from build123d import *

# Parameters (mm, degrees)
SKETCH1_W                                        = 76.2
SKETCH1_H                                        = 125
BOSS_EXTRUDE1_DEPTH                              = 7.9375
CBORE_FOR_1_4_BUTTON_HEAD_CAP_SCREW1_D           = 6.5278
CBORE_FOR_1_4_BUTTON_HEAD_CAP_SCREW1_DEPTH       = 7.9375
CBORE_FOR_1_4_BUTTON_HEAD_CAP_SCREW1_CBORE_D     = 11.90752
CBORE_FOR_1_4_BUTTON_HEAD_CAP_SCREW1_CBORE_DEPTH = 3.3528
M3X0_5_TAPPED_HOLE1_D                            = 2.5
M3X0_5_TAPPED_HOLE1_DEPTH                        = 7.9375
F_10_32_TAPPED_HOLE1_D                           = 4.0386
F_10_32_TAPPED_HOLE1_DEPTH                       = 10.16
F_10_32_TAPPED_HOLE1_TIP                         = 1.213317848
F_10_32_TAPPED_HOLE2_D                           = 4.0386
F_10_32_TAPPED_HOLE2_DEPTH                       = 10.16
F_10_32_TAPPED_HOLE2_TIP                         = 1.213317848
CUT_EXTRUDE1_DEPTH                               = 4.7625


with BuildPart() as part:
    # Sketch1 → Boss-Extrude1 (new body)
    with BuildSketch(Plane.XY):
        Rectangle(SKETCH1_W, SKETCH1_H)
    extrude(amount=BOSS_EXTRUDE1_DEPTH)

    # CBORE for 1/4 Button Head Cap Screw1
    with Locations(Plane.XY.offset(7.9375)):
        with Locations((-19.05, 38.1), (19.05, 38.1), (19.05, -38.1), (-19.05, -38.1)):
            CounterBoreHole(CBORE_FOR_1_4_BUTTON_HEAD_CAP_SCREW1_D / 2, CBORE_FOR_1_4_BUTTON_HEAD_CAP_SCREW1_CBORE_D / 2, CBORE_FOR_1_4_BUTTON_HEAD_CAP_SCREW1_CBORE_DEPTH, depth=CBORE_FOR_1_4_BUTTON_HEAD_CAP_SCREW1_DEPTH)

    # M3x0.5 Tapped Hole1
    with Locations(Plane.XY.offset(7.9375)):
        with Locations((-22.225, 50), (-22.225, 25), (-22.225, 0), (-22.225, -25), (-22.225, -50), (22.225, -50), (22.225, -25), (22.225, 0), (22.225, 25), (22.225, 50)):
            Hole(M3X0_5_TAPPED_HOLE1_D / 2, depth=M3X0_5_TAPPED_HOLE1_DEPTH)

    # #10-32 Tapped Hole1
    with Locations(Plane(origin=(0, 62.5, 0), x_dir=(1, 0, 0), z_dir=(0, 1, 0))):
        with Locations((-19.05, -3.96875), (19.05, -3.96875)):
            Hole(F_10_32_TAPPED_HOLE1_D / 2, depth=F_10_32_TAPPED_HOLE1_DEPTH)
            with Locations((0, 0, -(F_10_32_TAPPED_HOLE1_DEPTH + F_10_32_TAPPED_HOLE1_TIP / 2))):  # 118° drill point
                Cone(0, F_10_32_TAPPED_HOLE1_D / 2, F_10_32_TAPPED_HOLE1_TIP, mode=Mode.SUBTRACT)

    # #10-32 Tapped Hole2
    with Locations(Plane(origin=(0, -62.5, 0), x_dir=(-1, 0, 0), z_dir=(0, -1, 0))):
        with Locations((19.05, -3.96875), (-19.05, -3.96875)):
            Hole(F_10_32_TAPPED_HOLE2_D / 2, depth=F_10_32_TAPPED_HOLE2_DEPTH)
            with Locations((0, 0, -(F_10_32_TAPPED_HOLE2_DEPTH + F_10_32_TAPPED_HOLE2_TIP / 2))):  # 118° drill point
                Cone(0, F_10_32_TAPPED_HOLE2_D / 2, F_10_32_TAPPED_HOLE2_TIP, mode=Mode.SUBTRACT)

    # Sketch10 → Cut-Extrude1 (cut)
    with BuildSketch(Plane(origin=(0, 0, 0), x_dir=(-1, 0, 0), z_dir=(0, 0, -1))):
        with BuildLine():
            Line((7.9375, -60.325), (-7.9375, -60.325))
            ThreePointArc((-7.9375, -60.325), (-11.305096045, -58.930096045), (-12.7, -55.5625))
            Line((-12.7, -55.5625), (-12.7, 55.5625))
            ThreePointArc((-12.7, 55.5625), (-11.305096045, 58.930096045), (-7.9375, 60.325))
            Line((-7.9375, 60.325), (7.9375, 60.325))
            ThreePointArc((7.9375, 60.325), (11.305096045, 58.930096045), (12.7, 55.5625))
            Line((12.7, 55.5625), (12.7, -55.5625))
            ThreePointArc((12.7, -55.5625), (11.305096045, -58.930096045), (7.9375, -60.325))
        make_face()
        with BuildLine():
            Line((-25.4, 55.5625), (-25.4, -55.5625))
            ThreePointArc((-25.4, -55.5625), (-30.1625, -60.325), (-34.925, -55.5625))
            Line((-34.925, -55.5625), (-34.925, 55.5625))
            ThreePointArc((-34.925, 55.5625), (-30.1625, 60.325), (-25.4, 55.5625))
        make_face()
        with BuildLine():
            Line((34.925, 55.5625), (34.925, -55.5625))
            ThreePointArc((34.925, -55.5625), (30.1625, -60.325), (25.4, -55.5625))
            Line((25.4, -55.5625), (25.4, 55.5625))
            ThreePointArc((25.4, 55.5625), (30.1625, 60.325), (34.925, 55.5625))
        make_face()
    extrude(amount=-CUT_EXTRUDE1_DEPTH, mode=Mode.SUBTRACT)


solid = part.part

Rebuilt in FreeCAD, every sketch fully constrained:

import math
import FreeCAD as App
import Part
import Sketcher
Q = App.Units.Quantity

doc = App.newDocument("Part")
params = doc.addObject("Spreadsheet::Sheet", "Params")
for row, (alias, value) in enumerate([
    ("sketch1_width", "3 in"),
    ("pad1_length", "0.3125 in"),
    ("sketch2_diameter", "0.257 in"),
    ("hole_diameter", "0.257 in"),
    ("hole_depth", "0.3125 in"),
    ("hole_cbore_diameter", "0.4688 in"),
    ("hole_cbore_depth", "0.132 in"),
    ("hole2_diameter", "2.5 mm"),
    ("hole2_depth", "0.3125 in"),
    ("sketch4_diameter", "0.159 in"),
    ("hole3_diameter", "0.159 in"),
    ("hole3_depth", "0.4 in"),
    ("sketch5_diameter", "0.159 in"),
    ("hole4_diameter", "0.159 in"),
    ("hole4_depth", "0.4 in"),
    ("sketch6_radius", "0.1875 in"),
    ("sketch6_height", "4.375 in"),
    ("pocket1_length", "0.1875 in"),
], start=1):
    params.set(f"A{row}", alias)
    params.set(f"B{row}", "=" + value)
    params.setAlias(f"B{row}", alias)

body = doc.addObject("PartDesign::Body", "Body")

sketch1 = body.newObject("Sketcher::SketchObject", "Sketch")
sketch1.AttachmentSupport = (doc.getObject("XY_Plane"), [""])
sketch1.MapMode = "FlatFace"
sketch1.addGeometry([
    Part.LineSegment(App.Vector(-38.1, 62.5, 0), App.Vector(-38.1, -62.5, 0)),
    Part.LineSegment(App.Vector(-38.1, -62.5, 0), App.Vector(38.1, -62.5, 0)),
    Part.LineSegment(App.Vector(38.1, -62.5, 0), App.Vector(38.1, 62.5, 0)),
    Part.LineSegment(App.Vector(38.1, 62.5, 0), App.Vector(-38.1, 62.5, 0)),
], False)
sketch1.addConstraint([
    Sketcher.Constraint("Coincident", 0, 2, 1, 1),
    Sketcher.Constraint("Coincident", 1, 2, 2, 1),
    Sketcher.Constraint("Coincident", 2, 2, 3, 1),
    Sketcher.Constraint("Coincident", 3, 2, 0, 1),
    Sketcher.Constraint("Vertical", 0),
    Sketcher.Constraint("Horizontal", 1),
    Sketcher.Constraint("Vertical", 2),
    Sketcher.Constraint("Horizontal", 3),
    Sketcher.Constraint("Symmetric", 0, 2, 2, 2, -1, 1),
    Sketcher.Constraint("DistanceX", 1, 1, 1, 2, Q("3 in")),
    Sketcher.Constraint("DistanceY", 0, 2, 0, 1, 125.0),
])
sketch1.setExpression("Constraints[9]", "Params.sketch1_width")
pad1 = body.newObject("PartDesign::Pad", "Pad")
pad1.Profile = sketch1
pad1.setExpression("Length", "Params.pad1_length")

sketch2 = body.newObject("Sketcher::SketchObject", "Sketch001")
sketch2.AttachmentSupport = (doc.getObject("XY_Plane"), [""])
sketch2.MapMode = "FlatFace"
sketch2.AttachmentOffset = App.Placement(App.Vector(0, 0, 0.3125 * 25.4), App.Rotation())
sketch2.addGeometry([
    Part.Circle(App.Vector(-19.05, 38.1, 0), App.Vector(0, 0, 1), 3.2639),
    Part.Circle(App.Vector(19.05, 38.1, 0), App.Vector(0, 0, 1), 3.2639),
    Part.Circle(App.Vector(19.05, -38.1, 0), App.Vector(0, 0, 1), 3.2639),
    Part.Circle(App.Vector(-19.05, -38.1, 0), App.Vector(0, 0, 1), 3.2639),
], False)
sketch2.addConstraint([
    Sketcher.Constraint("Equal", 0, 1),
    Sketcher.Constraint("Equal", 1, 2),
    Sketcher.Constraint("Equal", 2, 3),
    Sketcher.Constraint("Symmetric", 0, 3, 2, 3, -1, 1),
    Sketcher.Constraint("Symmetric", 1, 3, 3, 3, -1, 1),
    Sketcher.Constraint("Symmetric", 0, 3, 1, 3, -2),
    Sketcher.Constraint("Diameter", 0, Q("0.257 in")),
    Sketcher.Constraint("DistanceY", 2, 3, 1, 3, Q("3 in")),
    Sketcher.Constraint("DistanceX", 0, 3, 1, 3, Q("1.5 in")),
])
sketch2.setExpression("Constraints[6]", "Params.sketch2_diameter")
doc.recompute()
hole = body.newObject("PartDesign::Hole", "Hole")
hole.Profile = sketch2
hole.ThreadType = "None"
hole.setExpression("Diameter", "Params.hole_diameter")
hole.DepthType = "Dimension"
hole.setExpression("Depth", "Params.hole_depth")
hole.DrillPoint = "Flat"
hole.HoleCutType = "Counterbore"
hole.setExpression("HoleCutDiameter", "Params.hole_cbore_diameter")
hole.setExpression("HoleCutDepth", "Params.hole_cbore_depth")

sketch3 = body.newObject("Sketcher::SketchObject", "Sketch002")
sketch3.AttachmentSupport = (doc.getObject("XY_Plane"), [""])
sketch3.MapMode = "FlatFace"
sketch3.AttachmentOffset = App.Placement(App.Vector(0, 0, 0.3125 * 25.4), App.Rotation())
sketch3.addGeometry([
    Part.Circle(App.Vector(-22.225, 50, 0), App.Vector(0, 0, 1), 1.25),
    Part.Circle(App.Vector(-22.225, 25, 0), App.Vector(0, 0, 1), 1.25),
    Part.Circle(App.Vector(-22.225, 0, 0), App.Vector(0, 0, 1), 1.25),
    Part.Circle(App.Vector(-22.225, -25, 0), App.Vector(0, 0, 1), 1.25),
    Part.Circle(App.Vector(-22.225, -50, 0), App.Vector(0, 0, 1), 1.25),
    Part.Circle(App.Vector(22.225, -50, 0), App.Vector(0, 0, 1), 1.25),
    Part.Circle(App.Vector(22.225, -25, 0), App.Vector(0, 0, 1), 1.25),
    Part.Circle(App.Vector(22.225, 0, 0), App.Vector(0, 0, 1), 1.25),
    Part.Circle(App.Vector(22.225, 25, 0), App.Vector(0, 0, 1), 1.25),
    Part.Circle(App.Vector(22.225, 50, 0), App.Vector(0, 0, 1), 1.25),
], False)
sketch3.addConstraint([
    Sketcher.Constraint("Equal", 0, 1),
    Sketcher.Constraint("Equal", 1, 2),
    Sketcher.Constraint("Equal", 2, 3),
    Sketcher.Constraint("Equal", 3, 4),
    Sketcher.Constraint("Equal", 4, 5),
    Sketcher.Constraint("Equal", 5, 6),
    Sketcher.Constraint("Equal", 6, 7),
    Sketcher.Constraint("Equal", 7, 8),
    Sketcher.Constraint("Equal", 8, 9),
    Sketcher.Constraint("Symmetric", 0, 3, 5, 3, -1, 1),
    Sketcher.Constraint("Symmetric", 1, 3, 6, 3, -1, 1),
    Sketcher.Constraint("Symmetric", 2, 3, 7, 3, -1, 1),
    Sketcher.Constraint("Symmetric", 3, 3, 8, 3, -1, 1),
    Sketcher.Constraint("Symmetric", 4, 3, 9, 3, -1, 1),
    Sketcher.Constraint("Symmetric", 4, 3, 5, 3, -2),
    Sketcher.Constraint("Symmetric", 3, 3, 6, 3, -2),
    Sketcher.Constraint("PointOnObject", 2, 3, -1),
    Sketcher.Constraint("Vertical", 0, 3, 1, 3),
    Sketcher.Constraint("Vertical", 1, 3, 2, 3),
    Sketcher.Constraint("Diameter", 0, 2.5),
    Sketcher.Constraint("DistanceX", 4, 3, 5, 3, Q("1.75 in")),
    Sketcher.Constraint("DistanceY", -1, 1, 0, 3, 50.0),
    Sketcher.Constraint("DistanceY", -1, 1, 1, 3, 25.0),
])
doc.recompute()
hole2 = body.newObject("PartDesign::Hole", "Hole001")
hole2.Profile = sketch3
hole2.ThreadType = "None"
hole2.setExpression("Diameter", "Params.hole2_diameter")
hole2.DepthType = "Dimension"
hole2.setExpression("Depth", "Params.hole2_depth")
hole2.DrillPoint = "Flat"

sketch4 = body.newObject("Sketcher::SketchObject", "Sketch003")
sketch4.AttachmentSupport = (doc.getObject("XZ_Plane"), [""])
sketch4.MapMode = "FlatFace"
sketch4.AttachmentOffset = App.Placement(App.Vector(0, 0, -62.5), App.Rotation())
sketch4.addGeometry([
    Part.Circle(App.Vector(-19.05, 3.96875, 0), App.Vector(0, 0, 1), 2.0193),
    Part.Circle(App.Vector(19.05, 3.96875, 0), App.Vector(0, 0, 1), 2.0193),
], False)
sketch4.addConstraint([
    Sketcher.Constraint("Equal", 0, 1),
    Sketcher.Constraint("Symmetric", 0, 3, 1, 3, -2),
    Sketcher.Constraint("Diameter", 0, Q("0.159 in")),
    Sketcher.Constraint("DistanceX", 0, 3, 1, 3, Q("1.5 in")),
    Sketcher.Constraint("DistanceY", -1, 1, 0, 3, Q("0.15625 in")),
])
sketch4.setExpression("Constraints[2]", "Params.sketch4_diameter")
doc.recompute()
hole3 = body.newObject("PartDesign::Hole", "Hole002")
hole3.Profile = sketch4
hole3.ThreadType = "None"
hole3.setExpression("Diameter", "Params.hole3_diameter")
hole3.DepthType = "Dimension"
hole3.setExpression("Depth", "Params.hole3_depth")
hole3.DrillPoint = "Angled"
hole3.DrillPointAngle = 118
hole3.Reversed = True

sketch5 = body.newObject("Sketcher::SketchObject", "Sketch004")
sketch5.AttachmentSupport = (doc.getObject("XZ_Plane"), [""])
sketch5.MapMode = "FlatFace"
sketch5.AttachmentOffset = App.Placement(App.Vector(0, 0, 62.5), App.Rotation())
sketch5.addGeometry([
    Part.Circle(App.Vector(-19.05, 3.96875, 0), App.Vector(0, 0, 1), 2.0193),
    Part.Circle(App.Vector(19.05, 3.96875, 0), App.Vector(0, 0, 1), 2.0193),
], False)
sketch5.addConstraint([
    Sketcher.Constraint("Equal", 0, 1),
    Sketcher.Constraint("Symmetric", 0, 3, 1, 3, -2),
    Sketcher.Constraint("Diameter", 0, Q("0.159 in")),
    Sketcher.Constraint("DistanceX", 0, 3, 1, 3, Q("1.5 in")),
    Sketcher.Constraint("DistanceY", -1, 1, 0, 3, Q("0.15625 in")),
])
sketch5.setExpression("Constraints[2]", "Params.sketch5_diameter")
doc.recompute()
hole4 = body.newObject("PartDesign::Hole", "Hole003")
hole4.Profile = sketch5
hole4.ThreadType = "None"
hole4.setExpression("Diameter", "Params.hole4_diameter")
hole4.DepthType = "Dimension"
hole4.setExpression("Depth", "Params.hole4_depth")
hole4.DrillPoint = "Angled"
hole4.DrillPointAngle = 118

sketch6 = body.newObject("Sketcher::SketchObject", "Sketch005")
sketch6.AttachmentSupport = (doc.getObject("XY_Plane"), [""])
sketch6.MapMode = "FlatFace"
sketch6.addGeometry([
    Part.LineSegment(App.Vector(7.9375, -60.325, 0), App.Vector(-7.9375, -60.325, 0)),
    Part.ArcOfCircle(Part.Circle(App.Vector(-7.9375, -55.5625, 0), App.Vector(0, 0, 1), 4.7625), math.radians(-180), math.radians(-90)),
    Part.LineSegment(App.Vector(-12.7, -55.5625, 0), App.Vector(-12.7, 55.5625, 0)),
    Part.ArcOfCircle(Part.Circle(App.Vector(-7.9375, 55.5625, 0), App.Vector(0, 0, 1), 4.7625), math.radians(90), math.radians(180)),
    Part.LineSegment(App.Vector(-7.9375, 60.325, 0), App.Vector(7.9375, 60.325, 0)),
    Part.ArcOfCircle(Part.Circle(App.Vector(7.9375, 55.5625, 0), App.Vector(0, 0, 1), 4.7625), math.radians(0), math.radians(90)),
    Part.LineSegment(App.Vector(12.7, 55.5625, 0), App.Vector(12.7, -55.5625, 0)),
    Part.ArcOfCircle(Part.Circle(App.Vector(7.9375, -55.5625, 0), App.Vector(0, 0, 1), 4.7625), math.radians(-90), math.radians(0)),
    Part.LineSegment(App.Vector(25.4, -55.5625, 0), App.Vector(25.4, 55.5625, 0)),
    Part.ArcOfCircle(Part.Circle(App.Vector(30.1625, 55.5625, 0), App.Vector(0, 0, 1), 4.7625), math.radians(0), math.radians(180)),
    Part.LineSegment(App.Vector(34.925, 55.5625, 0), App.Vector(34.925, -55.5625, 0)),
    Part.ArcOfCircle(Part.Circle(App.Vector(30.1625, -55.5625, 0), App.Vector(0, 0, 1), 4.7625), math.radians(180), math.radians(360)),
    Part.LineSegment(App.Vector(-34.925, -55.5625, 0), App.Vector(-34.925, 55.5625, 0)),
    Part.ArcOfCircle(Part.Circle(App.Vector(-30.1625, 55.5625, 0), App.Vector(0, 0, 1), 4.7625), math.radians(0), math.radians(180)),
    Part.LineSegment(App.Vector(-25.4, 55.5625, 0), App.Vector(-25.4, -55.5625, 0)),
    Part.ArcOfCircle(Part.Circle(App.Vector(-30.1625, -55.5625, 0), App.Vector(0, 0, 1), 4.7625), math.radians(180), math.radians(360)),
], False)
sketch6.addConstraint([
    Sketcher.Constraint("Tangent", 0, 2, 1, 2),
    Sketcher.Constraint("Tangent", 1, 1, 2, 1),
    Sketcher.Constraint("Tangent", 2, 2, 3, 2),
    Sketcher.Constraint("Tangent", 3, 1, 4, 1),
    Sketcher.Constraint("Tangent", 4, 2, 5, 2),
    Sketcher.Constraint("Tangent", 5, 1, 6, 1),
    Sketcher.Constraint("Tangent", 6, 2, 7, 2),
    Sketcher.Constraint("Tangent", 7, 1, 0, 1),
    Sketcher.Constraint("Tangent", 8, 2, 9, 2),
    Sketcher.Constraint("Tangent", 9, 1, 10, 1),
    Sketcher.Constraint("Tangent", 10, 2, 11, 2),
    Sketcher.Constraint("Tangent", 11, 1, 8, 1),
    Sketcher.Constraint("Tangent", 12, 2, 13, 2),
    Sketcher.Constraint("Tangent", 13, 1, 14, 1),
    Sketcher.Constraint("Tangent", 14, 2, 15, 2),
    Sketcher.Constraint("Tangent", 15, 1, 12, 1),
    Sketcher.Constraint("Horizontal", 0),
    Sketcher.Constraint("Vertical", 2),
    Sketcher.Constraint("Horizontal", 4),
    Sketcher.Constraint("Vertical", 6),
    Sketcher.Constraint("Vertical", 8),
    Sketcher.Constraint("Vertical", 10),
    Sketcher.Constraint("Vertical", 12),
    Sketcher.Constraint("Vertical", 14),
    Sketcher.Constraint("Equal", 1, 3),
    Sketcher.Constraint("Equal", 3, 5),
    Sketcher.Constraint("Equal", 5, 7),
    Sketcher.Constraint("Equal", 7, 9),
    Sketcher.Constraint("Equal", 11, 13),
    Sketcher.Constraint("Symmetric", 1, 3, 5, 3, -1, 1),
    Sketcher.Constraint("Symmetric", 11, 3, 13, 3, -1, 1),
    Sketcher.Constraint("Horizontal", 5, 3, 9, 3),
    Sketcher.Constraint("Horizontal", 7, 3, 11, 3),
    Sketcher.Constraint("Horizontal", 11, 3, 15, 3),
    Sketcher.Constraint("DistanceX", -1, 1, 8, 2, Q("1 in")),
    Sketcher.Constraint("Radius", 1, Q("0.1875 in")),
    Sketcher.Constraint("DistanceX", 1, 1, 6, 2, Q("1 in")),
    Sketcher.Constraint("DistanceY", 2, 1, 2, 2, Q("4.375 in")),
])
sketch6.setExpression("Constraints[35]", "Params.sketch6_radius")
sketch6.setExpression("Constraints[37]", "Params.sketch6_height")
pocket1 = body.newObject("PartDesign::Pocket", "Pocket")
pocket1.Profile = sketch6
pocket1.setExpression("Length", "Params.pocket1_length")
pocket1.Reversed = True

doc.recompute()
